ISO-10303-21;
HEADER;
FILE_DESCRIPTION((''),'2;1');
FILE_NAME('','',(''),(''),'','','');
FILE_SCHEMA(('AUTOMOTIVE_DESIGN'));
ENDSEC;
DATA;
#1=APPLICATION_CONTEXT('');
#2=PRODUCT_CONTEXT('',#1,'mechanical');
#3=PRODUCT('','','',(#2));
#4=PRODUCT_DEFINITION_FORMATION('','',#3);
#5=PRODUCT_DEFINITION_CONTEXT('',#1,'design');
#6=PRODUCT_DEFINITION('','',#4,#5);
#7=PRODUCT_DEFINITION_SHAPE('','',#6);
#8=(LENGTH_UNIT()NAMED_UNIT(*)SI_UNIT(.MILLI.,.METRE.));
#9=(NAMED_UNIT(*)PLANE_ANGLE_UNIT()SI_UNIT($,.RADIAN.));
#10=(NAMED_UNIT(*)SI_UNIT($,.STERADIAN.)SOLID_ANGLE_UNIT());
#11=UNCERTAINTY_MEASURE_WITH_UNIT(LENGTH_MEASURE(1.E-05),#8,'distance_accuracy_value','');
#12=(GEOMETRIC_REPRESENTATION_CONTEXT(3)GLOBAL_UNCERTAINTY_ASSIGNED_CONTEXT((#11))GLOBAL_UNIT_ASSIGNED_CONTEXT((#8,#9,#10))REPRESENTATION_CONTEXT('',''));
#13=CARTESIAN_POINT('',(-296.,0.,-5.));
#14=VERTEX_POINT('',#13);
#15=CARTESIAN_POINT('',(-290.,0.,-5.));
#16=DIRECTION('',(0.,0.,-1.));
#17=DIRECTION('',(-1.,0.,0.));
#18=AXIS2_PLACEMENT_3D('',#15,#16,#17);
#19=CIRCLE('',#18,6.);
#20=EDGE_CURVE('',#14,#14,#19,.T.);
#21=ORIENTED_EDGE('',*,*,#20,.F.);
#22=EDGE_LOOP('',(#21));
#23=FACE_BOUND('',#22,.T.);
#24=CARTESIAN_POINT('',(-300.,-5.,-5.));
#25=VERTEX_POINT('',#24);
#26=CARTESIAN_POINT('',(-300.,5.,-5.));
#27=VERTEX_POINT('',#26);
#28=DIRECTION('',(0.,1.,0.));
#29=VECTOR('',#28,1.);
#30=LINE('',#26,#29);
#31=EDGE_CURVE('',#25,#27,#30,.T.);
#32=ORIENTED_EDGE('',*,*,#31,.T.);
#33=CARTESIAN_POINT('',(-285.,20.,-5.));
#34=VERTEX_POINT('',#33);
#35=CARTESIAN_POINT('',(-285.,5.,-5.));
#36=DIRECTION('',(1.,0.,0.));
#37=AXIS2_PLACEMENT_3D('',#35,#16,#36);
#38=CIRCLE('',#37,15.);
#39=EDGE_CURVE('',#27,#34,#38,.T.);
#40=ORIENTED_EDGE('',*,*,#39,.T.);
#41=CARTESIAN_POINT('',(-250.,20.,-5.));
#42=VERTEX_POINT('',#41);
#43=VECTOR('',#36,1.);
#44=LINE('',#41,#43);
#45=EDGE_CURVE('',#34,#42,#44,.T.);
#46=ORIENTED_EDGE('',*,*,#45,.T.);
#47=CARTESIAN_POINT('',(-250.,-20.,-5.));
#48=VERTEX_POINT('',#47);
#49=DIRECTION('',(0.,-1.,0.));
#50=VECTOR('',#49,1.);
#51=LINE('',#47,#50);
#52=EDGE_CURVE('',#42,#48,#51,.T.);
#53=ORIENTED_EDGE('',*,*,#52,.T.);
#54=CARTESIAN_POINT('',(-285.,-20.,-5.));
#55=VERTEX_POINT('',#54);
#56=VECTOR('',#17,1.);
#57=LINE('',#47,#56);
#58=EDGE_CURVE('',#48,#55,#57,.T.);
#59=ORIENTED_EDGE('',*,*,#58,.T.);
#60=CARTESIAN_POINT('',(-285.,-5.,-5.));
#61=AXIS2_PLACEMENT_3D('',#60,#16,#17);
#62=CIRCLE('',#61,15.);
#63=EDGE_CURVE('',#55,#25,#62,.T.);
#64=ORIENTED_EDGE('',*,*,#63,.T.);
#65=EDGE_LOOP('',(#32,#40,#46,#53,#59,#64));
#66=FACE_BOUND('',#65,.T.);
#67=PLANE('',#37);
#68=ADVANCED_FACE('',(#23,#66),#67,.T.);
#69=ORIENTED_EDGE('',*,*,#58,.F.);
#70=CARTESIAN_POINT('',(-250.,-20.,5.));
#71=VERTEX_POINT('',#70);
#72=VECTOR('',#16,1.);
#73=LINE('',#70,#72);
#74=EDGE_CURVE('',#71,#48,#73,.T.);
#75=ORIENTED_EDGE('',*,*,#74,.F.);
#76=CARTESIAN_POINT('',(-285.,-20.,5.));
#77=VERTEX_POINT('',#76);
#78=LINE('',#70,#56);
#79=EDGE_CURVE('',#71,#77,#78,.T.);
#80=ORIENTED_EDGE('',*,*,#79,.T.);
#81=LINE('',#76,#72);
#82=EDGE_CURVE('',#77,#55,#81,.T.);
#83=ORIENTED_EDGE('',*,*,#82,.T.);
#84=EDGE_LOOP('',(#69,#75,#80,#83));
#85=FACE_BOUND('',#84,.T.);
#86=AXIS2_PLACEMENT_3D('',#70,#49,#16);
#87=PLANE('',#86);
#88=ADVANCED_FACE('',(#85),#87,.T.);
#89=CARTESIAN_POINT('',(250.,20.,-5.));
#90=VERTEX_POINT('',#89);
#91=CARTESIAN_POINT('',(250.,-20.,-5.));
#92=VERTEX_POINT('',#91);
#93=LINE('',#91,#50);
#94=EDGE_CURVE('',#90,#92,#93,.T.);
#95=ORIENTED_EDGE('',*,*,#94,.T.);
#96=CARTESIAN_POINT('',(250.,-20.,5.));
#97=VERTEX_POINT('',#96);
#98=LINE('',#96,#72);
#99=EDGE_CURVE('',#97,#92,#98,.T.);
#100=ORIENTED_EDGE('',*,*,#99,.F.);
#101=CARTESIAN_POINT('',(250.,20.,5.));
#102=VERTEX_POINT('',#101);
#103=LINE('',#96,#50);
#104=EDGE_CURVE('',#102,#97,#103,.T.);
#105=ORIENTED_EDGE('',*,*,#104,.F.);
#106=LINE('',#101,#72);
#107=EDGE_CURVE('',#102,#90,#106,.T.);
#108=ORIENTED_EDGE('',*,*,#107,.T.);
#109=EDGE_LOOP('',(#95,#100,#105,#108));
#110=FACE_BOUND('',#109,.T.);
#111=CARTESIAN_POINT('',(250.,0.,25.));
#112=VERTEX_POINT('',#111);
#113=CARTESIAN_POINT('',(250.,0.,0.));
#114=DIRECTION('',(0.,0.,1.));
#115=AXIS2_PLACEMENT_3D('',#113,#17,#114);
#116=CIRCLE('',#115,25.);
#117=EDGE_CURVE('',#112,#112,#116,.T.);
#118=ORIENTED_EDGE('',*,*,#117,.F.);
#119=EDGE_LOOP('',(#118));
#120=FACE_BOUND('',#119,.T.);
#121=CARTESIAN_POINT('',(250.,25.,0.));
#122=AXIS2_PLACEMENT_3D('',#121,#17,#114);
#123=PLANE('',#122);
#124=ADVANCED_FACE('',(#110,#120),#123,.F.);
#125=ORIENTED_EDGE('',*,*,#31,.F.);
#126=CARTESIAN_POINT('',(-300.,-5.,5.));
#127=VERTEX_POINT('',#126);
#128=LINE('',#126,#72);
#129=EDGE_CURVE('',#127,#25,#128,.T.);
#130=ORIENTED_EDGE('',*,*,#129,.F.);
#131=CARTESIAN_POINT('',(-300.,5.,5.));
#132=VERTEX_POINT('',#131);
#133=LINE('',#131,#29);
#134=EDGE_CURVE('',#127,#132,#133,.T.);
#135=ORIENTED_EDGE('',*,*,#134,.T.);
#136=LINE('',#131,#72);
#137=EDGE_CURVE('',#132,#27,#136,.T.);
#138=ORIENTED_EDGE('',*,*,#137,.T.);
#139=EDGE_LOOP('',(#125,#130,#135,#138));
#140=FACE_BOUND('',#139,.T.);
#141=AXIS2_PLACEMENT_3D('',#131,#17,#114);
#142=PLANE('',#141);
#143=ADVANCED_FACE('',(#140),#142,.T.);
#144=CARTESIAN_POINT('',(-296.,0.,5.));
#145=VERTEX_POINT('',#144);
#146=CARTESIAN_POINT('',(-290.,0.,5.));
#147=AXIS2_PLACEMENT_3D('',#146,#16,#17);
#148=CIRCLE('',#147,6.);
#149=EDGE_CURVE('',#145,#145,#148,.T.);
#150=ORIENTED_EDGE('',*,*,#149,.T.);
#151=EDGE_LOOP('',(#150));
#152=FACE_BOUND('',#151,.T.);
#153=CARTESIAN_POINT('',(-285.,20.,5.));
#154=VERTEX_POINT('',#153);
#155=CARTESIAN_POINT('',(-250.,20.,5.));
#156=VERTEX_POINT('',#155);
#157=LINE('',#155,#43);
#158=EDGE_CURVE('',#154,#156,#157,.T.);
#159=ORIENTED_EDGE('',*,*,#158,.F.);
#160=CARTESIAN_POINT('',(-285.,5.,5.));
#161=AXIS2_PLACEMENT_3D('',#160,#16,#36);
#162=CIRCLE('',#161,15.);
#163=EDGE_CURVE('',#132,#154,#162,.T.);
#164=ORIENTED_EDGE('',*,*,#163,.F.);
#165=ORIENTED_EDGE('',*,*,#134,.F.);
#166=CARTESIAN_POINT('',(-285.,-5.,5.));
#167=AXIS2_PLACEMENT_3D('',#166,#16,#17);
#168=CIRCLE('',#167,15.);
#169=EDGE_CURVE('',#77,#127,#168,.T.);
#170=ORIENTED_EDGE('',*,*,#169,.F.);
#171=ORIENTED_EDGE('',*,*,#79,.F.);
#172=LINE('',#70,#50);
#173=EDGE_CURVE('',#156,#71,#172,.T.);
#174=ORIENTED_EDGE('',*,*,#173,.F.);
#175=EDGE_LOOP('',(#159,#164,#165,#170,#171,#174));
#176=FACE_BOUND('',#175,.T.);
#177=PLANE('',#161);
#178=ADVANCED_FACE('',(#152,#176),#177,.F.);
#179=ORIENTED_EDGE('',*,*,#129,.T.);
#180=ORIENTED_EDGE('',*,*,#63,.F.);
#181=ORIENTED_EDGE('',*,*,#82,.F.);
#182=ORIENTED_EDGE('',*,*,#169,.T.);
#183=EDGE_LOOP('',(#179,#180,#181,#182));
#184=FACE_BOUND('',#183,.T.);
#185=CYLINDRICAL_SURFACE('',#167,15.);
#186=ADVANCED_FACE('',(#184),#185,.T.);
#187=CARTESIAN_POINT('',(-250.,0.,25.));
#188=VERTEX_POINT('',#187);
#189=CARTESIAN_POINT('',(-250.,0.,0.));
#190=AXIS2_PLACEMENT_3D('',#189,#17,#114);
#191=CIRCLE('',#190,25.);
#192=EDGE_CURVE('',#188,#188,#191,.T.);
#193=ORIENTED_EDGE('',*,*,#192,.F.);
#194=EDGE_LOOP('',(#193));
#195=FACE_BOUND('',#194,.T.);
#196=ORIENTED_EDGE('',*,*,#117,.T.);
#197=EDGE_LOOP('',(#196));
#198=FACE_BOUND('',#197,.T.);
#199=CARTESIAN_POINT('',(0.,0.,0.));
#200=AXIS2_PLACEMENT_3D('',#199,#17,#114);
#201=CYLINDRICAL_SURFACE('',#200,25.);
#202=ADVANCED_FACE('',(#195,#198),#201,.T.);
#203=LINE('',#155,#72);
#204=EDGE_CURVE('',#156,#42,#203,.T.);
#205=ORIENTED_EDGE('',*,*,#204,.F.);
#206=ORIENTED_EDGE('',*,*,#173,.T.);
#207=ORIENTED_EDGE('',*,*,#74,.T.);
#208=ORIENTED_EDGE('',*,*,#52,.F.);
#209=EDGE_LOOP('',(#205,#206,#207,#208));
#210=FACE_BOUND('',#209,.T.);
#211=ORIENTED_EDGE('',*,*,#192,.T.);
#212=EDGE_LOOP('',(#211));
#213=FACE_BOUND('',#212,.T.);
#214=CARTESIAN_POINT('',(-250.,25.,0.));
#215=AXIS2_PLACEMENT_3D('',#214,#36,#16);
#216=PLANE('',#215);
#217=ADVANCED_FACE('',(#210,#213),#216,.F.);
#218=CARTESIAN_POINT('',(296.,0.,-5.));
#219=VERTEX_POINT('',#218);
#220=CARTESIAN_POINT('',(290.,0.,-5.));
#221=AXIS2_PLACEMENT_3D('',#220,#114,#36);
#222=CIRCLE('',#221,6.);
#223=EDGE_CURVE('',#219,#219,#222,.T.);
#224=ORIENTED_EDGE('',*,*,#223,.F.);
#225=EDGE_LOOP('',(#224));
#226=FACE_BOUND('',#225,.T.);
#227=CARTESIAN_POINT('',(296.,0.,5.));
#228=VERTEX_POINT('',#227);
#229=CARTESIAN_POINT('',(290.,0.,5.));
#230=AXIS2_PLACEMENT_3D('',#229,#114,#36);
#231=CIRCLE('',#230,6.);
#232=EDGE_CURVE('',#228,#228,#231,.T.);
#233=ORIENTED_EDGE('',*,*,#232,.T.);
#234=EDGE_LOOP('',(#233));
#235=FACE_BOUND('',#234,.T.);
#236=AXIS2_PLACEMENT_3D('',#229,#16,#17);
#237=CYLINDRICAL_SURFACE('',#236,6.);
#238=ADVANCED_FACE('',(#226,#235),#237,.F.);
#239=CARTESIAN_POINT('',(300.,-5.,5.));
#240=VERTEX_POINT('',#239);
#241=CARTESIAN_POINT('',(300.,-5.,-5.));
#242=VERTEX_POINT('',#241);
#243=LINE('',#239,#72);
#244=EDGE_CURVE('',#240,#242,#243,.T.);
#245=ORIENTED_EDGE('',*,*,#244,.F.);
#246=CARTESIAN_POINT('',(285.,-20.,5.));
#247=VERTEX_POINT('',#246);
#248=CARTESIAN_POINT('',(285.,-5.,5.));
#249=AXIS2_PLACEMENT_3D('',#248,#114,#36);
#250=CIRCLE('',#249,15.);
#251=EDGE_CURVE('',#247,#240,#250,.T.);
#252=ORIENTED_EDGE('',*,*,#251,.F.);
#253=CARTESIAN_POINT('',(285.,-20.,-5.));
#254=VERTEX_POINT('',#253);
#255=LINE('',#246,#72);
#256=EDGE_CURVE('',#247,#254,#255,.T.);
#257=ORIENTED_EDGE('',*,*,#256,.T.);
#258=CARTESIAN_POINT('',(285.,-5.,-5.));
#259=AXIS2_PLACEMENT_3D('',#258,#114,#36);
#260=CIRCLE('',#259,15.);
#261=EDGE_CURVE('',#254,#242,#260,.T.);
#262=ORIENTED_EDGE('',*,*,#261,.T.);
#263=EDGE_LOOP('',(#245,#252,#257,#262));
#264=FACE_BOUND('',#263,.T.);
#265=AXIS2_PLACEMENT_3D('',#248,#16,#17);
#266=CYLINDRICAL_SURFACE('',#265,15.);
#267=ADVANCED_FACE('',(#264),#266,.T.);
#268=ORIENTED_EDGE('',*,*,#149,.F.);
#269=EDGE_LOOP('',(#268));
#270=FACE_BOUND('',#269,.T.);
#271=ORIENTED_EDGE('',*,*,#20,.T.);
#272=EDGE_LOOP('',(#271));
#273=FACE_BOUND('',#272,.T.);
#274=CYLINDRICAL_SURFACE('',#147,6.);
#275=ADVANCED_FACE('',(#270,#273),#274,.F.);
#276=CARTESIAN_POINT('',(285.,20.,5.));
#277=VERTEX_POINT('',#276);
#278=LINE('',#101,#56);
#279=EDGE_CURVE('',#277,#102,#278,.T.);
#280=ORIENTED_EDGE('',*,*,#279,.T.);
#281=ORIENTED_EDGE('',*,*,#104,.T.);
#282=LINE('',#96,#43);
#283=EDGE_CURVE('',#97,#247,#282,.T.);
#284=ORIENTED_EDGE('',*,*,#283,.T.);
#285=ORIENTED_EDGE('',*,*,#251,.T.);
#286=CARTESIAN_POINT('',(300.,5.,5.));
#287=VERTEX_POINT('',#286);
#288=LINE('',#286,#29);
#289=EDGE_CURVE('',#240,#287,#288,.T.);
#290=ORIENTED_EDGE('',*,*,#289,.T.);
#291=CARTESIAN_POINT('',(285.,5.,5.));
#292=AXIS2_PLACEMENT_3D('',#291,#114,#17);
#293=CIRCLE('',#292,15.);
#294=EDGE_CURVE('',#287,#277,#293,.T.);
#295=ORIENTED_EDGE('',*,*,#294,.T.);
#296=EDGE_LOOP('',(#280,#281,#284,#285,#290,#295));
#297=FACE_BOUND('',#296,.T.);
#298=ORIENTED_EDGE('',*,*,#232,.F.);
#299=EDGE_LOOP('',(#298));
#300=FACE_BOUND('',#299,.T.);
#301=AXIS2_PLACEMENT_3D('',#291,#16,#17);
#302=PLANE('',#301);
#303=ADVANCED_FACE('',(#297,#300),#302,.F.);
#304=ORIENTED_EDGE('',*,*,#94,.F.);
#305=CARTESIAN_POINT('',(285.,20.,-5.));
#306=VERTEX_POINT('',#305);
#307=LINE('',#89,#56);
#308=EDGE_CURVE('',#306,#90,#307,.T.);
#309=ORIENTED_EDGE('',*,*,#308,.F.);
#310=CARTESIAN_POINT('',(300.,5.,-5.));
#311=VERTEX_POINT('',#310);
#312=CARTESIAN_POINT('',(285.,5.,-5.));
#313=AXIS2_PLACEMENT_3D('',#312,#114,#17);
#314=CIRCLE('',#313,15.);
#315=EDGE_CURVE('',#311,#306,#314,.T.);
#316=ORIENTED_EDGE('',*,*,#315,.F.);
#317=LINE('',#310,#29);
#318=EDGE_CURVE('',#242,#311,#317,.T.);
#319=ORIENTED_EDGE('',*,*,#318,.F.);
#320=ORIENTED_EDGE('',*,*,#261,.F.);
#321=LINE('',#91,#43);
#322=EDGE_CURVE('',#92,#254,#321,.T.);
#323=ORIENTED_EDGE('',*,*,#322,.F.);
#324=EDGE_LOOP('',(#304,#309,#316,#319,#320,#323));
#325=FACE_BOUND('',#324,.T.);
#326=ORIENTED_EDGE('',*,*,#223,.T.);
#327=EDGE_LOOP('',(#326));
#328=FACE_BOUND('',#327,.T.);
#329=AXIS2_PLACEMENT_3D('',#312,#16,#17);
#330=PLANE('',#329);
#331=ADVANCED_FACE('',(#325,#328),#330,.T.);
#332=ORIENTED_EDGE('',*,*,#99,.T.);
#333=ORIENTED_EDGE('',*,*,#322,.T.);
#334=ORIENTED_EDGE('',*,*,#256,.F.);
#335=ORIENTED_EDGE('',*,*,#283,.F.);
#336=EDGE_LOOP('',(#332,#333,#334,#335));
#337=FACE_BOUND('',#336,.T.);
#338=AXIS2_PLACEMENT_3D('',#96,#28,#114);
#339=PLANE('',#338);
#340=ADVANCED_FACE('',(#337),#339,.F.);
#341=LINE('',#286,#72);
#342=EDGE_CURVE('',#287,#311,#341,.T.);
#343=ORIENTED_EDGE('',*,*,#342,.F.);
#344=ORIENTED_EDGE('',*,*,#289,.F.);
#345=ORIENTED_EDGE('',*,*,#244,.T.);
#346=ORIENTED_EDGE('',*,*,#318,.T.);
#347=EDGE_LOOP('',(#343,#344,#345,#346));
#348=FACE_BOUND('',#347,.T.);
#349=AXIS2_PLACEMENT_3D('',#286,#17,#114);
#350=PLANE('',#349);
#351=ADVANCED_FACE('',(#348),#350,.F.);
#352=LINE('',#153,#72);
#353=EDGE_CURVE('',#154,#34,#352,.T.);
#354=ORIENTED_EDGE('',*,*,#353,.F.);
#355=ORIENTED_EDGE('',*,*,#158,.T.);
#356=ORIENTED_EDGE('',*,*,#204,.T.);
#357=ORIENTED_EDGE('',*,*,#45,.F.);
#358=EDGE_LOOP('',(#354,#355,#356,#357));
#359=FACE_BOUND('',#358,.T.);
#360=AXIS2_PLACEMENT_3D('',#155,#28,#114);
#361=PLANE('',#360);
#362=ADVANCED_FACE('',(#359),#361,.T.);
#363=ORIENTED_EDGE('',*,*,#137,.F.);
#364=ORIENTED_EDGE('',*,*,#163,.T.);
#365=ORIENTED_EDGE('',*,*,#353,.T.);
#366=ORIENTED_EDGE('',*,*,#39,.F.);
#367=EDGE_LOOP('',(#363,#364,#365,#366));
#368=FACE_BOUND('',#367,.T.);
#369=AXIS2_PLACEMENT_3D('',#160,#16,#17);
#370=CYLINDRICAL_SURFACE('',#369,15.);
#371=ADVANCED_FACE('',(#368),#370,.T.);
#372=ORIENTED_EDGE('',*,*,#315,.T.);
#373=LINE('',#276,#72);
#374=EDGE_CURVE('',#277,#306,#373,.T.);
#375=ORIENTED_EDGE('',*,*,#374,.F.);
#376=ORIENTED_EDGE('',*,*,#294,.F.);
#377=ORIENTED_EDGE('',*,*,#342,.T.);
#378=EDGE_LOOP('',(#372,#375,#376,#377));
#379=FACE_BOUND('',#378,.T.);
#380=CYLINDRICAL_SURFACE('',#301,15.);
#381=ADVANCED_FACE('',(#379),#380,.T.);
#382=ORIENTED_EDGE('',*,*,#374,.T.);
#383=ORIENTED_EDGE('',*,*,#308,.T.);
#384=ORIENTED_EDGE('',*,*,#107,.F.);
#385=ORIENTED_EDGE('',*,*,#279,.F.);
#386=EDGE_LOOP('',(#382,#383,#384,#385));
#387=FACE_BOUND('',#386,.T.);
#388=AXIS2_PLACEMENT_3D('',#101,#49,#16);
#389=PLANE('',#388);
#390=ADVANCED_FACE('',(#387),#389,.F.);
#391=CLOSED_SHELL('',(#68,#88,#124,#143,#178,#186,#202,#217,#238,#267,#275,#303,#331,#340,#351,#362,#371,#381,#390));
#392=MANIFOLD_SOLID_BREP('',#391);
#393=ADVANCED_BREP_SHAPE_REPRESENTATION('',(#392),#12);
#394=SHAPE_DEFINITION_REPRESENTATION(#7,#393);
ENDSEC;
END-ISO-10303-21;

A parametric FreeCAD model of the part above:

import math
import FreeCAD as App
import Part
import Sketcher

V = App.Vector
Q = App.Units.Quantity


def add_polygon(sketch, points):
    """Adds a closed chain of lines whose ends are joined by coincident constraints."""
    first, n = sketch.GeometryCount, len(points)
    for a, b in zip(points, points[1:] + points[:1]):
        sketch.addGeometry(Part.LineSegment(App.Vector(*a, 0), App.Vector(*b, 0)), False)
    for i in range(n):
        sketch.addConstraint(Sketcher.Constraint("Coincident", first + i, 2, first + (i + 1) % n, 1))

doc = App.newDocument("Part")
body = doc.addObject("PartDesign::Body", "Body")

# Sketch on XY plane
sketch1 = doc.addObject("Sketcher::SketchObject", "Sketch")
body.addObject(sketch1)
sketch1.AttachmentSupport = (doc.XY_Plane, [""])
sketch1.MapMode = "FlatFace"
add_polygon(sketch1, [(-250, 25), (-250, 0), (250, 0), (250, 25)])  # lines 0-3
sketch1.addConstraint([
    Sketcher.Constraint("Vertical", 0),
    Sketcher.Constraint("Horizontal", 1),
    Sketcher.Constraint("Vertical", 2),
    Sketcher.Constraint("Horizontal", 3),
    Sketcher.Constraint("Symmetric", 0, 2, 1, 2, -1, 1),
    Sketcher.Constraint("DistanceX", 1, 1, 1, 2, Q("500 mm")),
    Sketcher.Constraint("DistanceY", 0, 2, 0, 1, Q("25 mm")),
])
revolution = doc.addObject("PartDesign::Revolution", "Revolution")
body.addObject(revolution)
revolution.Profile = sketch1
revolution.ReferenceAxis = (sketch1, ["H_Axis"])
revolution.Angle = 360

# Sketch on XY plane
sketch2 = doc.addObject("Sketcher::SketchObject", "Sketch001")
body.addObject(sketch2)
sketch2.AttachmentSupport = (doc.XY_Plane, [""])
sketch2.MapMode = "FlatFace"
sketch2.addGeometry([
    Part.LineSegment(V(250, 20, 0), V(250, -20, 0)),  # 0
    Part.LineSegment(V(250, -20, 0), V(285, -20, 0)),  # 1
    Part.ArcOfCircle(Part.Circle(V(285, -5, 0), V(0, 0, 1), 15), math.radians(-90), math.radians(0)),  # 2
    Part.LineSegment(V(300, -5, 0), V(300, 5, 0)),  # 3
    Part.ArcOfCircle(Part.Circle(V(285, 5, 0), V(0, 0, 1), 15), math.radians(0), math.radians(90)),  # 4
    Part.LineSegment(V(285, 20, 0), V(250, 20, 0)),  # 5
    Part.Circle(V(290, 0, 0), V(0, 0, 1), 6),  # 6
], False)
sketch2.addConstraint([
    Sketcher.Constraint("Coincident", 0, 2, 1, 1),
    Sketcher.Constraint("Tangent", 1, 2, 2, 1),
    Sketcher.Constraint("Tangent", 2, 2, 3, 1),
    Sketcher.Constraint("Tangent", 3, 2, 4, 1),
    Sketcher.Constraint("Tangent", 4, 2, 5, 1),
    Sketcher.Constraint("Coincident", 5, 2, 0, 1),
    Sketcher.Constraint("Vertical", 0),
    Sketcher.Constraint("Horizontal", 1),
    Sketcher.Constraint("Vertical", 3),
    Sketcher.Constraint("Horizontal", 5),
    Sketcher.Constraint("Equal", 2, 4),
    Sketcher.Constraint("PointOnObject", 6, 3, -1),
    Sketcher.Constraint("Diameter", 6, Q("12 mm")),
    Sketcher.Constraint("Radius", 2, Q("15 mm")),
    Sketcher.Constraint("DistanceX", 1, 1, 1, 2, Q("35 mm")),
    Sketcher.Constraint("DistanceY", 0, 2, 0, 1, Q("40 mm")),
    Sketcher.Constraint("DistanceX", -1, 1, 2, 3, Q("285 mm")),
    Sketcher.Constraint("DistanceY", 2, 3, -1, 1, Q("5 mm")),
    Sketcher.Constraint("DistanceX", -1, 1, 6, 3, Q("290 mm")),
])
pad1 = doc.addObject("PartDesign::Pad", "Pad")
body.addObject(pad1)
pad1.Profile = sketch2
pad1.Length = 10
pad1.Midplane = True
doc.recompute()

mirrored = doc.addObject("PartDesign::Mirrored", "Mirrored")
body.addObject(mirrored)
mirrored.Originals = [pad1]
mirrored.MirrorPlane = (doc.YZ_Plane, [""])
body.Tip = mirrored

doc.recompute()
